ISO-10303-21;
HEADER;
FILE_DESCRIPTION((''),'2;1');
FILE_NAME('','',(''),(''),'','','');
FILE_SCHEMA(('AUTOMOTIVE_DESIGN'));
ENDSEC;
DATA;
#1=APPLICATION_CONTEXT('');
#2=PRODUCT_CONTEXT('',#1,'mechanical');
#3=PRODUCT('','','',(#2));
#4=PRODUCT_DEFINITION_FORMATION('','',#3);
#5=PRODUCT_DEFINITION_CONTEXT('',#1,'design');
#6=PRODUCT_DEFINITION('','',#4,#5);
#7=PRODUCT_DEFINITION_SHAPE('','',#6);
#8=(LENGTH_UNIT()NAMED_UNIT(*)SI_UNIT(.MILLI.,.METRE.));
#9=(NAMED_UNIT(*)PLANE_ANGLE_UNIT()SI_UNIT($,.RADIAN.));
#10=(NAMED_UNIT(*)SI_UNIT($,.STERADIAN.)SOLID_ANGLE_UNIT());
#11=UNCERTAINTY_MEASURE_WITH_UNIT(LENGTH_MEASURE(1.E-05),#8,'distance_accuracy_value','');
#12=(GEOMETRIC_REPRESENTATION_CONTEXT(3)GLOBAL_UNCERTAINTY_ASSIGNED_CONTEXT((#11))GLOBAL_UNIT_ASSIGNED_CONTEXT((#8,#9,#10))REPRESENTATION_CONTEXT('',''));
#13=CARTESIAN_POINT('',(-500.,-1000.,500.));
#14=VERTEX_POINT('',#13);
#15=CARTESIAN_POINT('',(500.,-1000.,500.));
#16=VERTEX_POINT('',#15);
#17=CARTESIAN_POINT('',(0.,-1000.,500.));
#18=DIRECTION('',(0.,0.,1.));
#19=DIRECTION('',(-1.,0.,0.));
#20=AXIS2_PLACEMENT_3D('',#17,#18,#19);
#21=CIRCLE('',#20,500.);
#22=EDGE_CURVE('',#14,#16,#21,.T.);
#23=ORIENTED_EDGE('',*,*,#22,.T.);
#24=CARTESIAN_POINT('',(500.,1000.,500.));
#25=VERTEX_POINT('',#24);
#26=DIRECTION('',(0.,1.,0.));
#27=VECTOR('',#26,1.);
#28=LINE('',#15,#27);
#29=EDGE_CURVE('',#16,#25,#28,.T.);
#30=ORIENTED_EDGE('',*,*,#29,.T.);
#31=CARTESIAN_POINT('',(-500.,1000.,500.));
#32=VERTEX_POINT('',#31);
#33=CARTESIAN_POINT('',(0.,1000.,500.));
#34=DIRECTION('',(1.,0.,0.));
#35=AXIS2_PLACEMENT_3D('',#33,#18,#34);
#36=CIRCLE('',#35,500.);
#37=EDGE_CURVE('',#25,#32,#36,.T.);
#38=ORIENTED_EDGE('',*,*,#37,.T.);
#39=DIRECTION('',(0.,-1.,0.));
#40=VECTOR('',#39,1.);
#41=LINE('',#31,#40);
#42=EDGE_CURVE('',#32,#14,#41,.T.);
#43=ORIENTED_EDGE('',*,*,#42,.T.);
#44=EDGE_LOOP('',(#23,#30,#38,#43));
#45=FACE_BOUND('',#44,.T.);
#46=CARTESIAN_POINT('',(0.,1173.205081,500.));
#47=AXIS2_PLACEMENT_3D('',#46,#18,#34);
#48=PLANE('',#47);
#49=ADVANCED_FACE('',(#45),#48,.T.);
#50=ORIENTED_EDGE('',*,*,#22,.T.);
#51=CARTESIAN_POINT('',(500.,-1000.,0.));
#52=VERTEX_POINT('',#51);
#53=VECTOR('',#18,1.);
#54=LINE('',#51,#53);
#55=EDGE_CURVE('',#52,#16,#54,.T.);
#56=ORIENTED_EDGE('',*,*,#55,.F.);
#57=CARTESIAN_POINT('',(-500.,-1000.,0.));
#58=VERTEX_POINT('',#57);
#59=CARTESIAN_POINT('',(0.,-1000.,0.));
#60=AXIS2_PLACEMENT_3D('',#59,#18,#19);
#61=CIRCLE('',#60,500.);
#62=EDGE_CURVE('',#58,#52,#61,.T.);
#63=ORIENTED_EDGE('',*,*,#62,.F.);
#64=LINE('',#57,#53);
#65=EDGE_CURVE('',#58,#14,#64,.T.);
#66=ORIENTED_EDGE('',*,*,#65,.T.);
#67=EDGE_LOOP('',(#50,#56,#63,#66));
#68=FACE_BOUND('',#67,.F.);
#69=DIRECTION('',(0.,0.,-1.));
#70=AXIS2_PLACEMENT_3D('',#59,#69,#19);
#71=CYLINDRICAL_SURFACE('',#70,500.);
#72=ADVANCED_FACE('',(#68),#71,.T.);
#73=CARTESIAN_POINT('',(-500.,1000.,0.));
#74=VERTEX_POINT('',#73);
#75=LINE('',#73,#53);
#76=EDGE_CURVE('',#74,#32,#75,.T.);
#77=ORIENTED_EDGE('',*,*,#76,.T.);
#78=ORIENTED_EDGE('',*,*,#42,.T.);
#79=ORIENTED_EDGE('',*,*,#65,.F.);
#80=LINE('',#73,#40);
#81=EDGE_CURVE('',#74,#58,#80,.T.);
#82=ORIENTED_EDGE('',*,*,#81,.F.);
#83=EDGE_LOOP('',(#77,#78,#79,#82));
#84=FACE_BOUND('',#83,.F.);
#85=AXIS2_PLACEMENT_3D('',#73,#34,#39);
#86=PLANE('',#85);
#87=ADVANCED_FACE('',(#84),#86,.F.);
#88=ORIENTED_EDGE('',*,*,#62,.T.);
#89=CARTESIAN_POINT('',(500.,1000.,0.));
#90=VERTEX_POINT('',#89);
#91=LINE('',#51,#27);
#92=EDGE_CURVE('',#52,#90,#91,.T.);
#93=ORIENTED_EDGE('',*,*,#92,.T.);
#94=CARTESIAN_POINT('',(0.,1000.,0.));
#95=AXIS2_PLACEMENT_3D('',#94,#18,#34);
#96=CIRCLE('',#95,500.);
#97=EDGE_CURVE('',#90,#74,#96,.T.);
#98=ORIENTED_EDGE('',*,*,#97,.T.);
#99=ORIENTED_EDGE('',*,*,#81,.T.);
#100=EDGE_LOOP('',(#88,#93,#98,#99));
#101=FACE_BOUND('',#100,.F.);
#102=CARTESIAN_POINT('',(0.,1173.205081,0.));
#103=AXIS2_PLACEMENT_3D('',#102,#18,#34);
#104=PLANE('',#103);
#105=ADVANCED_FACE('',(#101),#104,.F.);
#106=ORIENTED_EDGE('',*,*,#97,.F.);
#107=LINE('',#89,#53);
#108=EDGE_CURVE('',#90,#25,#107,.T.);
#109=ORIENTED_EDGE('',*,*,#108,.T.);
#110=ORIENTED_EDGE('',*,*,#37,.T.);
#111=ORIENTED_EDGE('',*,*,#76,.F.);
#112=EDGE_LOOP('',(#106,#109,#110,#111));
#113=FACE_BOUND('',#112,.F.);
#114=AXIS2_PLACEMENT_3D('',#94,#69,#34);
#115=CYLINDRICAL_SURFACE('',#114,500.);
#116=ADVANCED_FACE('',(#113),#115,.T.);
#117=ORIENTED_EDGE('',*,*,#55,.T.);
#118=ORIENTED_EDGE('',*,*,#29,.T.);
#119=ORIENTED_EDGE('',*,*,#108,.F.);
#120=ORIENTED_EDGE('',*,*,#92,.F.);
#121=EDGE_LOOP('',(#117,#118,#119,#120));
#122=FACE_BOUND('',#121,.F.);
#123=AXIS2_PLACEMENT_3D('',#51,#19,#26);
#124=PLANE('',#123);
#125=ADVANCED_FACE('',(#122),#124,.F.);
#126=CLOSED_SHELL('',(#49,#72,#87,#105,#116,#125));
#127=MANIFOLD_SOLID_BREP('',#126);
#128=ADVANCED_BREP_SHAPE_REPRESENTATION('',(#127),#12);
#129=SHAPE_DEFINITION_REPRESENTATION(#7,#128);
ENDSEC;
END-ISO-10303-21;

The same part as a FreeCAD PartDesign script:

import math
import FreeCAD as App
import Part
import Sketcher
from FreeCAD import Vector

doc = App.newDocument("Part")
params = doc.addObject("Spreadsheet::Sheet", "Params")
for row, (alias, value) in enumerate([
    ("sketch1_radius", "500 mm"),
    ("sketch1_height", "2000 mm"),
    ("pad1_length", "500 mm"),
], start=1):
    params.set(f"A{row}", alias)
    params.set(f"B{row}", "=" + value)
    params.setAlias(f"B{row}", alias)

body = doc.addObject("PartDesign::Body", "Body")

sketch1 = doc.addObject("Sketcher::SketchObject", "Sketch")
body.addObject(sketch1)
sketch1.AttachmentSupport = (doc.XY_Plane, [""])
sketch1.MapMode = "FlatFace"
sketch1.addGeometry([
    Part.ArcOfCircle(Part.Circle(Vector(0, 1000, 0), Vector(0, 0, 1), 500), math.radians(0), math.radians(180)),
    Part.LineSegment(Vector(-500, 1000, 0), Vector(-500, -1000, 0)),
    Part.ArcOfCircle(Part.Circle(Vector(0, -1000, 0), Vector(0, 0, 1), 500), math.radians(180), math.radians(360)),
    Part.LineSegment(Vector(500, -1000, 0), Vector(500, 1000, 0)),
], False)
sketch1.addConstraint([
    Sketcher.Constraint("Tangent", 0, 2, 1, 1),
    Sketcher.Constraint("Tangent", 1, 2, 2, 1),
    Sketcher.Constraint("Tangent", 2, 2, 3, 1),
    Sketcher.Constraint("Tangent", 3, 2, 0, 1),
    Sketcher.Constraint("Vertical", 1),
    Sketcher.Constraint("Vertical", 3),
    Sketcher.Constraint("Symmetric", 0, 3, 2, 3, -1, 1),
    Sketcher.Constraint("Radius", 0, 500.0),
    Sketcher.Constraint("DistanceY", 1, 2, 1, 1, 2000.0),
])
sketch1.setExpression("Constraints[7]", "Params.sketch1_radius")
sketch1.setExpression("Constraints[8]", "Params.sketch1_height")
pad1 = doc.addObject("PartDesign::Pad", "Pad")
body.addObject(pad1)
pad1.Profile = sketch1
pad1.setExpression("Length", "Params.pad1_length")

doc.recompute()
